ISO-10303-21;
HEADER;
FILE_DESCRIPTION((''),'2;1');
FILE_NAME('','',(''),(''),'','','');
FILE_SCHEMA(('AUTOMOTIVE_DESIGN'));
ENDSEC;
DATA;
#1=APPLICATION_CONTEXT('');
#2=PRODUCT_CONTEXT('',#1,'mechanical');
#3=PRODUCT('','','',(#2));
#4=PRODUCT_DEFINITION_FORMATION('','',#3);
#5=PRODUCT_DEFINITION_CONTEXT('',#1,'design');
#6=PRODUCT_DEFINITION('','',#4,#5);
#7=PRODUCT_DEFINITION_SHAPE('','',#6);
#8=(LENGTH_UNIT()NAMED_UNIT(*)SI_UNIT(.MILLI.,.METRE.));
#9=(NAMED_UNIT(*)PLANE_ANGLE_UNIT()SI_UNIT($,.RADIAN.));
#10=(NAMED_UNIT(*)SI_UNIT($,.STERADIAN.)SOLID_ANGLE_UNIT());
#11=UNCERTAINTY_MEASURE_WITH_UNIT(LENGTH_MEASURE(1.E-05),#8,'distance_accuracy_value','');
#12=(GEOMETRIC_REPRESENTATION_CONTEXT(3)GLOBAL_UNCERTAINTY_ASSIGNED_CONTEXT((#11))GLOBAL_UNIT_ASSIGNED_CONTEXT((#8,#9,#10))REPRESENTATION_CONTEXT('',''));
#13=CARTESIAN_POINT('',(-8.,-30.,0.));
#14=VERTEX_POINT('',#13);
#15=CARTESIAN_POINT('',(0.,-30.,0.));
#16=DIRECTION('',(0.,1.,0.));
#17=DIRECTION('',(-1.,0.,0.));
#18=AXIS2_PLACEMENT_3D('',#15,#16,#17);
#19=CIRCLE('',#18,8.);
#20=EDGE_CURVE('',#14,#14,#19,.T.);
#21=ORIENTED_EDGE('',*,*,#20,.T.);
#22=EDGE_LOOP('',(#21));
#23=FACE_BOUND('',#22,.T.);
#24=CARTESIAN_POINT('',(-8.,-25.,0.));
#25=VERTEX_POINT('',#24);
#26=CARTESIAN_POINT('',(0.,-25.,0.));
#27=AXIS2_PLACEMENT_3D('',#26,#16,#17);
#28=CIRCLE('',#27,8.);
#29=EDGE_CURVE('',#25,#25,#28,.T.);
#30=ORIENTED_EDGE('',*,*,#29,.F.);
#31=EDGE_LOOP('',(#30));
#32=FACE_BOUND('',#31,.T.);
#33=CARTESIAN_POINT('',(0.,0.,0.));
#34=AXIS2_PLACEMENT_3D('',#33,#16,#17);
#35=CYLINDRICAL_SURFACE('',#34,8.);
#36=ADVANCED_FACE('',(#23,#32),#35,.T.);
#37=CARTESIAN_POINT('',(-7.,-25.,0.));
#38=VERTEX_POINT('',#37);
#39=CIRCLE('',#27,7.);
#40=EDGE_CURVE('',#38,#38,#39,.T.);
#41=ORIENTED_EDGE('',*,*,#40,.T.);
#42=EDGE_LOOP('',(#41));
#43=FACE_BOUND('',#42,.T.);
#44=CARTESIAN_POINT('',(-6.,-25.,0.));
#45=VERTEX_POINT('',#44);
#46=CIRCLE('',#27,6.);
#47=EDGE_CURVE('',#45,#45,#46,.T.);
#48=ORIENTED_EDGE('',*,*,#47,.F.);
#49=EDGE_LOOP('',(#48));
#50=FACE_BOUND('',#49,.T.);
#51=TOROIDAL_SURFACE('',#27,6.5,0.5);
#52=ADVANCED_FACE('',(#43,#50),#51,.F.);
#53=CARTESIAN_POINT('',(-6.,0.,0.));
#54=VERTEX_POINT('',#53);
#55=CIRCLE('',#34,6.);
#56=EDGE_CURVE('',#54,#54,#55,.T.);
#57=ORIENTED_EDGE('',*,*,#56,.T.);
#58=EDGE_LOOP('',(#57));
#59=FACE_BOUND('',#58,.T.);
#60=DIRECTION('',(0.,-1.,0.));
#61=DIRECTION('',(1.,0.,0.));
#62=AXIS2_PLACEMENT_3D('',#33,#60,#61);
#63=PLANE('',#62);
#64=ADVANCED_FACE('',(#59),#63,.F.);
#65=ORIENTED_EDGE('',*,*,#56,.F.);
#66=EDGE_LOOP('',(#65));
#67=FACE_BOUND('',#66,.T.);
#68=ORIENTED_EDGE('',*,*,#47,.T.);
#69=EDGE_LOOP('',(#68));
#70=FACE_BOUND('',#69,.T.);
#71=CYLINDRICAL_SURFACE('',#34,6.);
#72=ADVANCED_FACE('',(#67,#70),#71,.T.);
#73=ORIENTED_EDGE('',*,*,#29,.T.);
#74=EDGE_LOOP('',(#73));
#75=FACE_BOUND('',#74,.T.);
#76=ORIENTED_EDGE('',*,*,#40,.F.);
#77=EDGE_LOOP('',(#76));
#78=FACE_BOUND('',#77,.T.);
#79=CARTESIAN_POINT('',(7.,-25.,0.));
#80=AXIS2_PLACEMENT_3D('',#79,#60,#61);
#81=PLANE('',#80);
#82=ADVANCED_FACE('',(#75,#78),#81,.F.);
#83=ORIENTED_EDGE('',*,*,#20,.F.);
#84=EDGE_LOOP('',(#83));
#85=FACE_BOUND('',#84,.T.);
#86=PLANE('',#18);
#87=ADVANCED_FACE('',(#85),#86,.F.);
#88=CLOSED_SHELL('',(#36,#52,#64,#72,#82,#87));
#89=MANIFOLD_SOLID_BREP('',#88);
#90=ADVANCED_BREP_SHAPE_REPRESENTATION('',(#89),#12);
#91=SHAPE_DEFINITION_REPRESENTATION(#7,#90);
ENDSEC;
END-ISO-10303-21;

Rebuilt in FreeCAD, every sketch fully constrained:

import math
import FreeCAD as App
import Part
import Sketcher
from FreeCAD import Vector
Q = App.Units.Quantity

doc = App.newDocument("Part")
params = doc.addObject("Spreadsheet::Sheet", "Params")
for row, (alias, value) in enumerate([
    ("sketch1_radius", "0.5 mm"),
    ("sketch1_width", "6 mm"),
    ("sketch1_width2", "8 mm"),
    ("sketch1_height", "30 mm"),
    ("sketch1_height2", "5 mm"),
    ("revolution_angle", "360 deg"),
], start=1):
    params.set(f"A{row}", alias)
    params.set(f"B{row}", "=" + value)
    params.setAlias(f"B{row}", alias)

body = doc.addObject("PartDesign::Body", "Body")

sketch1 = body.newObject("Sketcher::SketchObject", "Sketch")
sketch1.AttachmentSupport = (doc.getObject("XY_Plane"), [""])
sketch1.MapMode = "FlatFace"
sketch1.addGeometry([
    Part.LineSegment(Vector(6, 0, 0), Vector(0, 0, 0)),
    Part.LineSegment(Vector(0, 0, 0), Vector(0, -30, 0)),
    Part.LineSegment(Vector(0, -30, 0), Vector(8, -30, 0)),
    Part.LineSegment(Vector(8, -30, 0), Vector(8, -25, 0)),
    Part.LineSegment(Vector(8, -25, 0), Vector(7, -25, 0)),
    Part.ArcOfCircle(Part.Circle(Vector(6.5, -25, 0), Vector(0, 0, 1), 0.5), math.radians(180), math.radians(360)),
    Part.LineSegment(Vector(6, -25, 0), Vector(6, 0, 0)),
], False)
sketch1.addConstraint([
    Sketcher.Constraint("Coincident", 0, 2, 1, 1),
    Sketcher.Constraint("Coincident", 1, 2, 2, 1),
    Sketcher.Constraint("Coincident", 2, 2, 3, 1),
    Sketcher.Constraint("Coincident", 3, 2, 4, 1),
    Sketcher.Constraint("Coincident", 4, 2, 5, 2),
    Sketcher.Constraint("Tangent", 5, 1, 6, 1),
    Sketcher.Constraint("Coincident", 6, 2, 0, 1),
    Sketcher.Constraint("Horizontal", 0),
    Sketcher.Constraint("Vertical", 1),
    Sketcher.Constraint("Horizontal", 2),
    Sketcher.Constraint("Vertical", 3),
    Sketcher.Constraint("Horizontal", 4),
    Sketcher.Constraint("Vertical", 6),
    Sketcher.Constraint("Coincident", 0, 2, -1, 1),
    Sketcher.Constraint("Horizontal", 5, 3, 3, 2),
    Sketcher.Constraint("Radius", 5, Q("0.5 mm")),
    Sketcher.Constraint("DistanceX", 0, 2, 0, 1, Q("6 mm")),
    Sketcher.Constraint("DistanceX", 2, 1, 2, 2, Q("8 mm")),
    Sketcher.Constraint("DistanceY", 1, 2, 1, 1, Q("30 mm")),
    Sketcher.Constraint("DistanceY", 3, 1, 3, 2, Q("5 mm")),
])
sketch1.setExpression("Constraints[15]", "Params.sketch1_radius")
sketch1.setExpression("Constraints[16]", "Params.sketch1_width")
sketch1.setExpression("Constraints[17]", "Params.sketch1_width2")
sketch1.setExpression("Constraints[18]", "Params.sketch1_height")
sketch1.setExpression("Constraints[19]", "Params.sketch1_height2")
revolution = body.newObject("PartDesign::Revolution", "Revolution")
revolution.Profile = sketch1
revolution.ReferenceAxis = (sketch1, ["V_Axis"])
revolution.setExpression("Angle", "Params.revolution_angle")

doc.recompute()
